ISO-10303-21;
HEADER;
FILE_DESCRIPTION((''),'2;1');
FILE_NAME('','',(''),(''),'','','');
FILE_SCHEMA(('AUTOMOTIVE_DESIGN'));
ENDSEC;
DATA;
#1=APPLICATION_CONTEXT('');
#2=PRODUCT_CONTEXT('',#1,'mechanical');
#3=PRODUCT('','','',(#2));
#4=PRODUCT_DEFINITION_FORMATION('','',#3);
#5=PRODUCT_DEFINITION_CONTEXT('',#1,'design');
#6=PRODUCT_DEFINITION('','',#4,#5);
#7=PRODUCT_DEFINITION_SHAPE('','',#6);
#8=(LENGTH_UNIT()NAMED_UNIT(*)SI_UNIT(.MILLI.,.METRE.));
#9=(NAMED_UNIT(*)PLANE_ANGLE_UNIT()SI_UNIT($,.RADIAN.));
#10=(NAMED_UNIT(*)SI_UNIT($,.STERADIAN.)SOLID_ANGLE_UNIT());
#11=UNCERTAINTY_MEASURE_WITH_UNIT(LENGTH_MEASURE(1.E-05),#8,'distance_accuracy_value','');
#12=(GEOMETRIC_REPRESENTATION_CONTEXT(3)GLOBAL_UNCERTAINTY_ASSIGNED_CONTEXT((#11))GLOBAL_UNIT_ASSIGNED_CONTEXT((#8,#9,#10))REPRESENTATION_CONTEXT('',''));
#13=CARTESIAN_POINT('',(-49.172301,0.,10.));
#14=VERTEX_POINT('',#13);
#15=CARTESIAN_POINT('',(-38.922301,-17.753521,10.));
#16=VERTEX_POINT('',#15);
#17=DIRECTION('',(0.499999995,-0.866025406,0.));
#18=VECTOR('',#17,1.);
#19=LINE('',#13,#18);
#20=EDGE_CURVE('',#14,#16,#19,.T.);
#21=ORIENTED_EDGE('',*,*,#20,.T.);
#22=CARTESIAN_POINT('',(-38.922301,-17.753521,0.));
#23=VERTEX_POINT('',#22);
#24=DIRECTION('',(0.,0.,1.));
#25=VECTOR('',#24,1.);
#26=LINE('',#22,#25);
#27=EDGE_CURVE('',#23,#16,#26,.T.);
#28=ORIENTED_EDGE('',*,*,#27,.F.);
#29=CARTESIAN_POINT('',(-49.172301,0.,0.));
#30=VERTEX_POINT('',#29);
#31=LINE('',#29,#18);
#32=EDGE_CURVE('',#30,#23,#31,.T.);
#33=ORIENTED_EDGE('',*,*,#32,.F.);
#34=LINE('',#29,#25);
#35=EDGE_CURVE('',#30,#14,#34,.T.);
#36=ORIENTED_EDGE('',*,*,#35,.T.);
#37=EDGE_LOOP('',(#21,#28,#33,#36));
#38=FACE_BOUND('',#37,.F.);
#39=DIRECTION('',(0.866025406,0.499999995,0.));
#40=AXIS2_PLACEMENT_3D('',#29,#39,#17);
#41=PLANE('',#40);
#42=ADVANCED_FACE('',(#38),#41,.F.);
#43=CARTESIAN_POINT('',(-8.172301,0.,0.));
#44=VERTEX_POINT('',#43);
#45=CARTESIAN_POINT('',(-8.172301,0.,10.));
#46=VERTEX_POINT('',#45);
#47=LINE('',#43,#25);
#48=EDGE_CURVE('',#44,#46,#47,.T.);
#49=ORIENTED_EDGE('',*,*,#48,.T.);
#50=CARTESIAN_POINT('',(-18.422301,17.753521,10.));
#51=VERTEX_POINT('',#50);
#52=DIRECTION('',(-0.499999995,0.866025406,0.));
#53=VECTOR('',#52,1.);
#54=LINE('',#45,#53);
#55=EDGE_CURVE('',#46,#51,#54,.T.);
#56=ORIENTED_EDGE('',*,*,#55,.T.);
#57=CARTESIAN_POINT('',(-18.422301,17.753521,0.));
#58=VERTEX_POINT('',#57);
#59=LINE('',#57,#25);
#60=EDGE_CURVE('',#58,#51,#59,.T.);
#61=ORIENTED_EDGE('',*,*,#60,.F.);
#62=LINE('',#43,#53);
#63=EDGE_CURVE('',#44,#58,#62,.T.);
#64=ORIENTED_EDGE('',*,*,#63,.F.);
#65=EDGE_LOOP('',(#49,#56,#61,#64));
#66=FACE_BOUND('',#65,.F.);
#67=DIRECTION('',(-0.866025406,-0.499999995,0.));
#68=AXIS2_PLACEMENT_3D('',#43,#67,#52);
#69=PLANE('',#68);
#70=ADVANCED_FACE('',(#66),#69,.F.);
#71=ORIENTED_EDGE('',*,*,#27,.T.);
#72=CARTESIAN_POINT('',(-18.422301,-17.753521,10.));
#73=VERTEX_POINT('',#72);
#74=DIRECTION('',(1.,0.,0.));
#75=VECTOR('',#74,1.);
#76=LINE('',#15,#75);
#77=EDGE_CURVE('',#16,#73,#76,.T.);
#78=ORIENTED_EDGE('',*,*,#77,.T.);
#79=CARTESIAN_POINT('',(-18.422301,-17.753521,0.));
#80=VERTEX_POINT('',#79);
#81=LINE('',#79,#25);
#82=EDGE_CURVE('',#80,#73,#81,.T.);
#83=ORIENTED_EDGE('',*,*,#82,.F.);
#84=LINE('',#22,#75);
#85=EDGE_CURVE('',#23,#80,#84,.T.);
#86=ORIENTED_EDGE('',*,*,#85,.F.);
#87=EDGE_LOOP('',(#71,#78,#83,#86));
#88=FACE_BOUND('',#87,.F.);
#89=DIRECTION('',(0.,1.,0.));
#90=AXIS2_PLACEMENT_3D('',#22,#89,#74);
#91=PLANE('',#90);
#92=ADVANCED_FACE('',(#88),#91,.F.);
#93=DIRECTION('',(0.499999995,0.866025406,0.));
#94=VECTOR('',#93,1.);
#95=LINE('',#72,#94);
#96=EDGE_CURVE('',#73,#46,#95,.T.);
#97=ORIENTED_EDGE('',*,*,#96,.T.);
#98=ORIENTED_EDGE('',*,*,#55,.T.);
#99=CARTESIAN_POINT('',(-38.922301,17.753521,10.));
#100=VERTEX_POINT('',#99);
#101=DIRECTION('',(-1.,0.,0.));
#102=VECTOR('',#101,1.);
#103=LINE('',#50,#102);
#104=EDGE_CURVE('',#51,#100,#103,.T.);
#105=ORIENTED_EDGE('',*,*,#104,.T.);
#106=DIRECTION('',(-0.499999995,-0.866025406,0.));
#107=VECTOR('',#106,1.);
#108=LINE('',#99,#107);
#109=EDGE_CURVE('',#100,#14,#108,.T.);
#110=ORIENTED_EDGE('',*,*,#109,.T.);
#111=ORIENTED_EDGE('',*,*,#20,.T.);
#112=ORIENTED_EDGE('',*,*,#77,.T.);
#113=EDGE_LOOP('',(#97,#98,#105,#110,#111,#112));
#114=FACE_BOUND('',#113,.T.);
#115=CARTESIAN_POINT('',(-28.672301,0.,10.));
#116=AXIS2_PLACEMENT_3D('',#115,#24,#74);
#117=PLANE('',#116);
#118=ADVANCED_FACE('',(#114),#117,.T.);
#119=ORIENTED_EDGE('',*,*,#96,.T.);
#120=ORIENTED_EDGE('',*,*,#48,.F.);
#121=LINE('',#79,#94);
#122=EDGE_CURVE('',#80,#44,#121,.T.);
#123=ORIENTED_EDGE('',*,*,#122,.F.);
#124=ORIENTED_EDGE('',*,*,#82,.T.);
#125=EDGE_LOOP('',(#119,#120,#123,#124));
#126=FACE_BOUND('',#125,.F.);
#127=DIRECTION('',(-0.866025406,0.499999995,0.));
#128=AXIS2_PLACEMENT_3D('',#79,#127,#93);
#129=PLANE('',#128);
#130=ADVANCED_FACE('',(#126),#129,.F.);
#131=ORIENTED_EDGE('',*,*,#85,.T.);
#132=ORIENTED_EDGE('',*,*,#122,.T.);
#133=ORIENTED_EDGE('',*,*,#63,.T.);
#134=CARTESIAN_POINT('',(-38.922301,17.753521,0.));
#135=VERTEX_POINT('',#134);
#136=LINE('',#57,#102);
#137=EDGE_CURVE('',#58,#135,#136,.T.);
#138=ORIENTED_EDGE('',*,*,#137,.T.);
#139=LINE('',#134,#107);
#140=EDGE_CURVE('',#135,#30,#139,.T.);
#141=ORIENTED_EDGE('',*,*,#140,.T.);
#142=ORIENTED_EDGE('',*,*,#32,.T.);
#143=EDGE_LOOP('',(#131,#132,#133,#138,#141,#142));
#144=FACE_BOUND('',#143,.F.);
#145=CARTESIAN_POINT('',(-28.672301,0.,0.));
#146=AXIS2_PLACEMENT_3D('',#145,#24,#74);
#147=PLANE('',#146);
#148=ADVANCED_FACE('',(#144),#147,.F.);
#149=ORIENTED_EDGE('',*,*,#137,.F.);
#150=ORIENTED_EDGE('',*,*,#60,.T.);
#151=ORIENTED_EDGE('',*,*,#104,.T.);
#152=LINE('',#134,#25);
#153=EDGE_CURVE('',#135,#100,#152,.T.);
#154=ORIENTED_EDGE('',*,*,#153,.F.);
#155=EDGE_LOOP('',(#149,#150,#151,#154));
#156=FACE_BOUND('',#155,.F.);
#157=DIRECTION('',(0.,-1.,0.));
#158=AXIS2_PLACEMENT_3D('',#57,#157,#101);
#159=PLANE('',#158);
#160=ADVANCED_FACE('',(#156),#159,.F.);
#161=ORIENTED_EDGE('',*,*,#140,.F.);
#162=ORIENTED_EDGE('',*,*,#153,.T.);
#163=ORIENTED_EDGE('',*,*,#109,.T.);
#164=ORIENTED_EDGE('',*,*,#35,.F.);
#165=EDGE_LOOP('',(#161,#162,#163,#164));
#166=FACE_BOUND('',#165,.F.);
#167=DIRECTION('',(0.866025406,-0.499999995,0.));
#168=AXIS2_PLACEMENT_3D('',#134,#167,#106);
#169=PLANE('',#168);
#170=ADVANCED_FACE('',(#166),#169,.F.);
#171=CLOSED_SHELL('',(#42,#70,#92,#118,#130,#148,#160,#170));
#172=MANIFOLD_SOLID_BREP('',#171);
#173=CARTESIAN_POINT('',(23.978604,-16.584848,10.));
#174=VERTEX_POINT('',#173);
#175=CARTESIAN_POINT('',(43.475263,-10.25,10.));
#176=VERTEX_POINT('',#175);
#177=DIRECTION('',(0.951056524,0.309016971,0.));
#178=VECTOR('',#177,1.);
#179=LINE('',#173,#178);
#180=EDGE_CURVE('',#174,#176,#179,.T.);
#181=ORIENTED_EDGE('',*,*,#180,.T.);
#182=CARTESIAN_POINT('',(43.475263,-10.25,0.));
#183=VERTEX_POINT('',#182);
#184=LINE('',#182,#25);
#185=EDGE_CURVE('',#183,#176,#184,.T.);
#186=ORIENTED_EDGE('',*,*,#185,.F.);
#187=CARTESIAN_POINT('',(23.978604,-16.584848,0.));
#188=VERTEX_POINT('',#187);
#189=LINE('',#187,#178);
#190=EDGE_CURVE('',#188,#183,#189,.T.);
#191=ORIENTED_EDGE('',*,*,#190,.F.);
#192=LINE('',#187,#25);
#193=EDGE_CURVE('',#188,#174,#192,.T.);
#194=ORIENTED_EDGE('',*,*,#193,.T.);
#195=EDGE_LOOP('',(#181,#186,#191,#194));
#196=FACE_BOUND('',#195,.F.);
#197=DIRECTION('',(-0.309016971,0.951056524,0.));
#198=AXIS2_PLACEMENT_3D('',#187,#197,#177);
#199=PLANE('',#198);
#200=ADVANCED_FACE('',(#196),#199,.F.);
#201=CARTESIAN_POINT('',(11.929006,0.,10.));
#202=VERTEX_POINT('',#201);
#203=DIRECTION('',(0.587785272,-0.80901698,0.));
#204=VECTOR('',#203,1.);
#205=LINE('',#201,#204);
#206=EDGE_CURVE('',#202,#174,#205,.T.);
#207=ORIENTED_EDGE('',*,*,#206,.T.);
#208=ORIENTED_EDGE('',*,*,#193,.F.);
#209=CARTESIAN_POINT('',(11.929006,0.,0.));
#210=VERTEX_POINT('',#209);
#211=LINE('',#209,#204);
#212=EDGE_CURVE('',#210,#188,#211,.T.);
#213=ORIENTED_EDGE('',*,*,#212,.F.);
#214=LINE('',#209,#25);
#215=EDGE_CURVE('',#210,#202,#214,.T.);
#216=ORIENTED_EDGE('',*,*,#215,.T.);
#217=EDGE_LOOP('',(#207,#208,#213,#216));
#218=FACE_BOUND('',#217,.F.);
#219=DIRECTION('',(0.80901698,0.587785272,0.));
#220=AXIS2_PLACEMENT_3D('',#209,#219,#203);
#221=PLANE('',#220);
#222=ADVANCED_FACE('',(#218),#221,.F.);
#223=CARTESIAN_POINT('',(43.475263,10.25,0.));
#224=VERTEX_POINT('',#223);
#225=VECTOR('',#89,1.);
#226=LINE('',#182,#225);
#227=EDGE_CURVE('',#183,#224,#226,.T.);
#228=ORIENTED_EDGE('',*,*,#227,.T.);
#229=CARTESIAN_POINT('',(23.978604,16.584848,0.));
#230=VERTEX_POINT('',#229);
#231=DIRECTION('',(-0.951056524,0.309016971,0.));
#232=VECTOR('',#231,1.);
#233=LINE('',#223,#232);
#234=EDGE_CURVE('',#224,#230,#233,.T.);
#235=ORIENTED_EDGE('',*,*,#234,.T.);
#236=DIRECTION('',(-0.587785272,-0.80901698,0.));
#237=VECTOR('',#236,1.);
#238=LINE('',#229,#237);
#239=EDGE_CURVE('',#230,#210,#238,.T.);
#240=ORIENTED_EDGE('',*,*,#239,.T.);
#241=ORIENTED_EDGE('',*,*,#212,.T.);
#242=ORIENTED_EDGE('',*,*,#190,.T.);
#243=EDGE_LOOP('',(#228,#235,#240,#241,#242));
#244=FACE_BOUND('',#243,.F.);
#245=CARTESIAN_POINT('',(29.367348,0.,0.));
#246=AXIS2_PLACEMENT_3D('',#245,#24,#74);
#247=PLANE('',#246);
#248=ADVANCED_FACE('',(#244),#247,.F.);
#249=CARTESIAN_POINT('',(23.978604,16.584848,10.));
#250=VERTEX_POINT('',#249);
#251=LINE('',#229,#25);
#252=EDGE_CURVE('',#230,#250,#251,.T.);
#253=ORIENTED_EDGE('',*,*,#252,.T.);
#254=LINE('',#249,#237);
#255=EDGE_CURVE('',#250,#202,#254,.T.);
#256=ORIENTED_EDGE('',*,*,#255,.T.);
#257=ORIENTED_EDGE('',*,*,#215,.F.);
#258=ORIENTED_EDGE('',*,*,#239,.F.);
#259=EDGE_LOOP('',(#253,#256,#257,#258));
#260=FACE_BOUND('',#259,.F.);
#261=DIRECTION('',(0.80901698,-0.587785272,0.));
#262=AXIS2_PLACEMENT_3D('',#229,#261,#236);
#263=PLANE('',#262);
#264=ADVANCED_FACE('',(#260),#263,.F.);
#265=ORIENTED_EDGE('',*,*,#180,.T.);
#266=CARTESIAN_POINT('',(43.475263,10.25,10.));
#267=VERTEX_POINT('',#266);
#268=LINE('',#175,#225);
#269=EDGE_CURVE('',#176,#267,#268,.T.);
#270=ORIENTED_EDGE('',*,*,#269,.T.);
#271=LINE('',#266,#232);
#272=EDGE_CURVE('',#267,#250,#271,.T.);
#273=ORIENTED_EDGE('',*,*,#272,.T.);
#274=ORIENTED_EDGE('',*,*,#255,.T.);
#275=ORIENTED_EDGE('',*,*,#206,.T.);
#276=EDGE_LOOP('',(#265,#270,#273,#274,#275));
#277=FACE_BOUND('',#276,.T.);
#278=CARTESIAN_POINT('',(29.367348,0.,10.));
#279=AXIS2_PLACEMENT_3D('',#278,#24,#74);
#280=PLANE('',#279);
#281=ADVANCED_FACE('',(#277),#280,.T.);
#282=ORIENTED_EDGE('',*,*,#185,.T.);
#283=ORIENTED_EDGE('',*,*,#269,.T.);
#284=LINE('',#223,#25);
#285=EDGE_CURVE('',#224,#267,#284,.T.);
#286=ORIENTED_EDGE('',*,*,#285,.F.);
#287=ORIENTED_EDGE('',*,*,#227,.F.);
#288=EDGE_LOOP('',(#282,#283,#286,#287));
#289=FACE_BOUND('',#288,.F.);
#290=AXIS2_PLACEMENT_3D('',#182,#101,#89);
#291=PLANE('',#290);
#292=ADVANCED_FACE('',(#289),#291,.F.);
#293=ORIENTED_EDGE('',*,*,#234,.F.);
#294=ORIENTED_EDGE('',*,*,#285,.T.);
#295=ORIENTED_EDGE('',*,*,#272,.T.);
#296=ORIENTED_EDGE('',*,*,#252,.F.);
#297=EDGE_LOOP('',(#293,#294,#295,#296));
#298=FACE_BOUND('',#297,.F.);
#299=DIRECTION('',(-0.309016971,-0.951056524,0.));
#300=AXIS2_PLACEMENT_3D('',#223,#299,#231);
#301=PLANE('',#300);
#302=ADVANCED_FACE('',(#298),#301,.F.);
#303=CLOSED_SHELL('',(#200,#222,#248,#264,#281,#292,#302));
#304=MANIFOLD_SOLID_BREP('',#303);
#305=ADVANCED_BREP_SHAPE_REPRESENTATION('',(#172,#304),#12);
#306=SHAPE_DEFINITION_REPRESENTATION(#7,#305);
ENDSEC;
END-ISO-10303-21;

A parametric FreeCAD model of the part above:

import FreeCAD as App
import Part
import Sketcher
Q = App.Units.Quantity

doc = App.newDocument("Part")
body = doc.addObject("PartDesign::Body", "Body")
body.AllowCompound = True

sketch1 = body.newObject("Sketcher::SketchObject", "Sketch")
sketch1.AttachmentSupport = (doc.getObject("XY_Plane"), [""])
sketch1.MapMode = "FlatFace"
sketch1.addGeometry([
    Part.LineSegment(App.Vector(-38.922301, 17.753521, 0), App.Vector(-49.172301, 0, 0)),
    Part.LineSegment(App.Vector(-49.172301, 0, 0), App.Vector(-38.922301, -17.753521, 0)),
    Part.LineSegment(App.Vector(-38.922301, -17.753521, 0), App.Vector(-18.422301, -17.753521, 0)),
    Part.LineSegment(App.Vector(-18.422301, -17.753521, 0), App.Vector(-8.172301, 0, 0)),
    Part.LineSegment(App.Vector(-8.172301, 0, 0), App.Vector(-18.422301, 17.753521, 0)),
    Part.LineSegment(App.Vector(-18.422301, 17.753521, 0), App.Vector(-38.922301, 17.753521, 0)),
    Part.LineSegment(App.Vector(23.978604, 16.584848, 0), App.Vector(11.929006, 0, 0)),
    Part.LineSegment(App.Vector(11.929006, 0, 0), App.Vector(23.978604, -16.584848, 0)),
    Part.LineSegment(App.Vector(23.978604, -16.584848, 0), App.Vector(43.475263, -10.25, 0)),
    Part.LineSegment(App.Vector(43.475263, -10.25, 0), App.Vector(43.475263, 10.25, 0)),
    Part.LineSegment(App.Vector(43.475263, 10.25, 0), App.Vector(23.978604, 16.584848, 0)),
], False)
sketch1.addConstraint([
    Sketcher.Constraint("Coincident", 0, 2, 1, 1),
    Sketcher.Constraint("Coincident", 1, 2, 2, 1),
    Sketcher.Constraint("Coincident", 2, 2, 3, 1),
    Sketcher.Constraint("Coincident", 3, 2, 4, 1),
    Sketcher.Constraint("Coincident", 4, 2, 5, 1),
    Sketcher.Constraint("Coincident", 5, 2, 0, 1),
    Sketcher.Constraint("Coincident", 6, 2, 7, 1),
    Sketcher.Constraint("Coincident", 7, 2, 8, 1),
    Sketcher.Constraint("Coincident", 8, 2, 9, 1),
    Sketcher.Constraint("Coincident", 9, 2, 10, 1),
    Sketcher.Constraint("Coincident", 10, 2, 6, 1),
    Sketcher.Constraint("Horizontal", 2),
    Sketcher.Constraint("Horizontal", 5),
    Sketcher.Constraint("Vertical", 9),
    Sketcher.Constraint("Symmetric", 2, 2, 4, 2, -1),
    Sketcher.Constraint("Symmetric", 7, 2, 10, 2, -1),
    Sketcher.Constraint("PointOnObject", 0, 2, -1),
    Sketcher.Constraint("PointOnObject", 3, 2, -1),
    Sketcher.Constraint("PointOnObject", 6, 2, -1),
    Sketcher.Constraint("Parallel", 0, 3),
    Sketcher.Constraint("Parallel", 1, 4),
    Sketcher.Constraint("Equal", 5, 9),
    Sketcher.Constraint("Equal", 4, 6),
    Sketcher.Constraint("Equal", 7, 8),
    Sketcher.Constraint("Equal", 8, 10),
    Sketcher.Constraint("Angle", 0, Q("-120 deg")),
    Sketcher.Constraint("Angle", 6, Q("-126.000001 deg")),
    Sketcher.Constraint("Angle", 8, Q("17.999999 deg")),
    Sketcher.Constraint("DistanceX", 2, 1, 2, 2, Q("20.5 mm")),
    Sketcher.Constraint("DistanceX", 0, 2, -1, 1, Q("49.172301 mm")),
    Sketcher.Constraint("DistanceX", -1, 1, 6, 2, Q("11.929006 mm")),
])
pad1 = body.newObject("PartDesign::Pad", "Pad")
pad1.Profile = sketch1
pad1.Length = 10

doc.recompute()
